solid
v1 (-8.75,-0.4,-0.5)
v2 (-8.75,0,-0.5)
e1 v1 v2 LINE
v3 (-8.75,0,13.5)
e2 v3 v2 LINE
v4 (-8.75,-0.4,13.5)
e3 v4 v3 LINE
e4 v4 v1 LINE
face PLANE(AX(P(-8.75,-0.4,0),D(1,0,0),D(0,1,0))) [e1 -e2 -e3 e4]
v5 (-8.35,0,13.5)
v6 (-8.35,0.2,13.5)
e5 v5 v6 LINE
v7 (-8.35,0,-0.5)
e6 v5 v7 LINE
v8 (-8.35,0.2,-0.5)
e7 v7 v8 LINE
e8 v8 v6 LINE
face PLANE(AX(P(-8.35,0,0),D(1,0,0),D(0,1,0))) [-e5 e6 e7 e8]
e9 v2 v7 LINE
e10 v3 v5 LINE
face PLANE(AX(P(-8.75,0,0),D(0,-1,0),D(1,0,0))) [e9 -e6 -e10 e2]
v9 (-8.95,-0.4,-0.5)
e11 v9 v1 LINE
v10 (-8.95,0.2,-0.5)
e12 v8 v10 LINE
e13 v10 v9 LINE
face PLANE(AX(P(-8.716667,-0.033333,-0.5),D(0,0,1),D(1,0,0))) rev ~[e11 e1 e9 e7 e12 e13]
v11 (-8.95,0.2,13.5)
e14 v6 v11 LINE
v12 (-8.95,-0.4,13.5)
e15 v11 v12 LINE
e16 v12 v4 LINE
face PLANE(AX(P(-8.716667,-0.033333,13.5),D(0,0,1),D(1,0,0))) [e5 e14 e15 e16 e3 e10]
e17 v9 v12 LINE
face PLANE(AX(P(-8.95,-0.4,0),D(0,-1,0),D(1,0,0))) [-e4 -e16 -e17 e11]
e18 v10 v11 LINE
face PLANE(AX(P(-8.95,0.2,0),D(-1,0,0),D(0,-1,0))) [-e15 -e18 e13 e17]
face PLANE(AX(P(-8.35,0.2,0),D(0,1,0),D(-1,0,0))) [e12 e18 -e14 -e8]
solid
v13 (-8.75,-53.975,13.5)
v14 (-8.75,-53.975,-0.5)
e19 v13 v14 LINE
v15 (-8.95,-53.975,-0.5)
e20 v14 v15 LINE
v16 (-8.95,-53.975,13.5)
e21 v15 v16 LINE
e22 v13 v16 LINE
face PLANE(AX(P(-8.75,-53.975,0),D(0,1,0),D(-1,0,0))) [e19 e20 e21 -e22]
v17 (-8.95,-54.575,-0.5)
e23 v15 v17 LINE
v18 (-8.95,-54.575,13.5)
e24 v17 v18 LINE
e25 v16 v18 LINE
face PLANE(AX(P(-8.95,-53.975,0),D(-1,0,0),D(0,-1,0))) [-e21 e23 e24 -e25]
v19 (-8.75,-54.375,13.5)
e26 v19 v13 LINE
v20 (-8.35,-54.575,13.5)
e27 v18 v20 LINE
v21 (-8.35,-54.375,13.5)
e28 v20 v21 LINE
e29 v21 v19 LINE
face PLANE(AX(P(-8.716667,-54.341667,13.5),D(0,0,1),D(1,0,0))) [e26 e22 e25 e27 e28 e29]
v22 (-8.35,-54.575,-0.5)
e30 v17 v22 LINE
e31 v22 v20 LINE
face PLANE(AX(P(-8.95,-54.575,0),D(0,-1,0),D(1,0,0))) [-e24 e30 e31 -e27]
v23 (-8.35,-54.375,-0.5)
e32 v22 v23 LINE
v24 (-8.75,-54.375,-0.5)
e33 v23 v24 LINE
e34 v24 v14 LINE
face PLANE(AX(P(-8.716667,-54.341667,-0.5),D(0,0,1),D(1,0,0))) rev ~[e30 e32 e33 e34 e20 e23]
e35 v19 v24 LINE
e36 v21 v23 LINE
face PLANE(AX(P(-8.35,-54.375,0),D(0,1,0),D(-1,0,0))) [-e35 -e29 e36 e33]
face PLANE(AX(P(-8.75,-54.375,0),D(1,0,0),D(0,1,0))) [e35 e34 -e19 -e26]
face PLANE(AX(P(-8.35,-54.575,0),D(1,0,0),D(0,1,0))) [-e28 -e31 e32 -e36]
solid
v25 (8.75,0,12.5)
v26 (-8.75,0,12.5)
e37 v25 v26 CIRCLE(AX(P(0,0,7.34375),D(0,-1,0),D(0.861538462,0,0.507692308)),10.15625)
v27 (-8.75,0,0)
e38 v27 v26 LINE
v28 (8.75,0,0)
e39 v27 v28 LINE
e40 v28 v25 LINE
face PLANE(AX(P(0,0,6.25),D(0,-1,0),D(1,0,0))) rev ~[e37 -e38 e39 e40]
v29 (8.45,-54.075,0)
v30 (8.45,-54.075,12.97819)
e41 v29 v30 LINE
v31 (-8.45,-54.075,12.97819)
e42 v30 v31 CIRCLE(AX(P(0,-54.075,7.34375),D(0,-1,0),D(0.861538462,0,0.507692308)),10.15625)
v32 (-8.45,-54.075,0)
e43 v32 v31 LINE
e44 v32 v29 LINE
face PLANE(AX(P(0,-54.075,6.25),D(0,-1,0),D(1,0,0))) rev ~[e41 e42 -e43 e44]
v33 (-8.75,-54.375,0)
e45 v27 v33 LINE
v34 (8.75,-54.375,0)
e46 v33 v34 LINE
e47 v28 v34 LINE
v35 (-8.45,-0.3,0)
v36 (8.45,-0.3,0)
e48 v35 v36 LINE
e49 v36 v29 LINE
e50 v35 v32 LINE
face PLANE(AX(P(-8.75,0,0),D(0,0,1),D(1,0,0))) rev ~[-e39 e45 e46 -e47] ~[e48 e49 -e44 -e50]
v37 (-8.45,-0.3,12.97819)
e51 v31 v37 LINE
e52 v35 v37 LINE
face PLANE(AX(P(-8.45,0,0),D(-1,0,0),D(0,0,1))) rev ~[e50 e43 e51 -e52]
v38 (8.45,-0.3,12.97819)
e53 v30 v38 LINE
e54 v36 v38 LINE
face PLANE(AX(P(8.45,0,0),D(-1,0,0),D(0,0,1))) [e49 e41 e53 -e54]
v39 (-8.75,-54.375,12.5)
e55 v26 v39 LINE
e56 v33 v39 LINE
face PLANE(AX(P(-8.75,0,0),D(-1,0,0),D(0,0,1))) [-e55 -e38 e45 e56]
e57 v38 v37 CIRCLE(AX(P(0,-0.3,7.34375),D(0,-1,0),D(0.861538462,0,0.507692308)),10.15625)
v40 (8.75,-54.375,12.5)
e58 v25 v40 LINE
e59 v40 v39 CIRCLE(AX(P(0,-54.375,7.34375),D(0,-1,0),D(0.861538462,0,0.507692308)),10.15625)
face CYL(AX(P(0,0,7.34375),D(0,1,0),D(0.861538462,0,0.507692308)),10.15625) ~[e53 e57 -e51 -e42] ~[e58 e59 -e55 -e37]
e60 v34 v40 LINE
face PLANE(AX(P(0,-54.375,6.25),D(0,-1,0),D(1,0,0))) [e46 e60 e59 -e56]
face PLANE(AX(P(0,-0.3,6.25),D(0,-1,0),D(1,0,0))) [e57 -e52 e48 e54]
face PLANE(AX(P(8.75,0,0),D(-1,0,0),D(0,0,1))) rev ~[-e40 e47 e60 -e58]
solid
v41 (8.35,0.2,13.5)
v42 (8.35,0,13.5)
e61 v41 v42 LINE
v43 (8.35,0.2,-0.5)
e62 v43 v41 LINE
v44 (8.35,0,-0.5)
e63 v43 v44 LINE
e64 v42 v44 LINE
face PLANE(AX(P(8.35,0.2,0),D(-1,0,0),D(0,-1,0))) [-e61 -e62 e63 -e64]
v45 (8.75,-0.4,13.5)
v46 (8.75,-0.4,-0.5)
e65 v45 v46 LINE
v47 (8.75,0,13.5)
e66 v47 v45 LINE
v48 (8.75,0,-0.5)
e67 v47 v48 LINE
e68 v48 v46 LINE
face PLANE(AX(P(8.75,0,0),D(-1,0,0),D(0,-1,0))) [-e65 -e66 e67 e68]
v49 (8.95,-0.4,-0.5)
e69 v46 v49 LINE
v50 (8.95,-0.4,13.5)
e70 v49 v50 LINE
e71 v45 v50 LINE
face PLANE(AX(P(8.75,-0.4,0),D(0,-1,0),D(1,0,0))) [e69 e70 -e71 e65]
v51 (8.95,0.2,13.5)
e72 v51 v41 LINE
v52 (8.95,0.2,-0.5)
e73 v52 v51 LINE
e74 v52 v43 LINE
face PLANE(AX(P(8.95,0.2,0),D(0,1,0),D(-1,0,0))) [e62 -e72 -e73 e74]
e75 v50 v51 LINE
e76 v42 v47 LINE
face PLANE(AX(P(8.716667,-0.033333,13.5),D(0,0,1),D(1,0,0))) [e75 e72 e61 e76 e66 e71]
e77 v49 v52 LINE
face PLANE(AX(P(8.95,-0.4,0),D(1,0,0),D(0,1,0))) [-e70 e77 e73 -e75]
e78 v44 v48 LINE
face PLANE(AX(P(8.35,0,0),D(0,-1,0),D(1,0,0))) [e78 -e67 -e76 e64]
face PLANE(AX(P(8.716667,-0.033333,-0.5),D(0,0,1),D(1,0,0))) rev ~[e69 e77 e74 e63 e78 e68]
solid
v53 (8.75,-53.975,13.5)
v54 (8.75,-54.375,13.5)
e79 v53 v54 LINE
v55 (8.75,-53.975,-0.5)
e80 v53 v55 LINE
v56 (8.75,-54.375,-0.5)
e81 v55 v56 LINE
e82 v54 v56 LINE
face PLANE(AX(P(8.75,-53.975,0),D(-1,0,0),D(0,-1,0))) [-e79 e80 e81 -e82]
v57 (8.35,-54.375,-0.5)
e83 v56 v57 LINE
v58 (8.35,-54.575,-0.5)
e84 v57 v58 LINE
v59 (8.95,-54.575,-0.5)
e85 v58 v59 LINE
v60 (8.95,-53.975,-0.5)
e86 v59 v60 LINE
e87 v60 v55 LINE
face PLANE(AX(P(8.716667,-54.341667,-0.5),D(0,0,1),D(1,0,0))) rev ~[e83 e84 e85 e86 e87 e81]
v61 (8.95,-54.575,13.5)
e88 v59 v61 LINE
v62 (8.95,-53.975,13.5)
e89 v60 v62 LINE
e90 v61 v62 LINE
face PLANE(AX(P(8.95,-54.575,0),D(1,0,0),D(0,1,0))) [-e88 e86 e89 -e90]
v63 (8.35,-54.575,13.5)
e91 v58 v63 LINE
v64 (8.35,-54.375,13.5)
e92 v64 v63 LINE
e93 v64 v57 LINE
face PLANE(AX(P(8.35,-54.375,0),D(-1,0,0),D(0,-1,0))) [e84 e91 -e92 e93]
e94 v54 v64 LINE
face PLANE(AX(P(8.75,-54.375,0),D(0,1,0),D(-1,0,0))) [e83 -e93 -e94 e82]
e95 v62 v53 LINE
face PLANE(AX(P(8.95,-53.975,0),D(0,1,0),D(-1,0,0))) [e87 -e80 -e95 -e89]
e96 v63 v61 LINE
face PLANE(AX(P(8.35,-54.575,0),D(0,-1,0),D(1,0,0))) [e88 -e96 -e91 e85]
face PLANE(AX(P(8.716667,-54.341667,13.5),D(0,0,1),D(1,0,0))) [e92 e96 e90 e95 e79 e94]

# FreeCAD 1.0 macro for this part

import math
import FreeCAD as App
import Part
import Sketcher
Q = App.Units.Quantity


def faces_at(feature, points):
    """Names of the faces that lie closest to the given points."""
    faces = feature.Shape.Faces
    near = lambda p: min(range(len(faces)), key=lambda i: faces[i].distToShape(Part.Vertex(*p))[0])
    return sorted({f"Face{near(p) + 1}" for p in points})

doc = App.newDocument("Part")
body = doc.addObject("PartDesign::Body", "Body")

sketch1 = body.newObject("Sketcher::SketchObject", "Sketch")
sketch1.AttachmentSupport = (doc.getObject("XZ_Plane"), [""])
sketch1.MapMode = "FlatFace"
sketch1.addGeometry([
    Part.LineSegment(App.Vector(-9, 12, 0), App.Vector(-9, 0, 0)),
    Part.LineSegment(App.Vector(-9, 0, 0), App.Vector(9, 0, 0)),
    Part.LineSegment(App.Vector(9, 0, 0), App.Vector(9, 12, 0)),
    Part.ArcOfCircle(Part.Circle(App.Vector(0, 7, 0), App.Vector(0, 0, 1), 10), math.radians(31), math.radians(149)),
], False)
sketch1.addConstraint([
    Sketcher.Constraint("Coincident", 0, 2, 1, 1),
    Sketcher.Constraint("Coincident", 1, 2, 2, 1),
    Sketcher.Constraint("Coincident", 2, 2, 3, 1),
    Sketcher.Constraint("Coincident", 3, 2, 0, 1),
    Sketcher.Constraint("Vertical", 0),
    Sketcher.Constraint("Horizontal", 1),
    Sketcher.Constraint("Vertical", 2),
    Sketcher.Constraint("Symmetric", 0, 2, 1, 2, -1, 1),
    Sketcher.Constraint("PointOnObject", 3, 3, -2),
    Sketcher.Constraint("DistanceX", 1, 1, 1, 2, Q("17.5 mm")),
    Sketcher.Constraint("DistanceY", 0, 2, 0, 1, Q("12.5 mm")),
    Sketcher.Constraint("Radius", 3, Q("10.15625 mm")),
])
pad1 = body.newObject("PartDesign::Pad", "Pad")
pad1.Profile = sketch1
pad1.Length = 54.375
doc.recompute()

thickness = body.newObject("PartDesign::Thickness", "Thickness")
thickness.Base = (pad1, faces_at(pad1, [(0, -27.188, 0), (0, -27.188, 17.5)]))
thickness.Value = 0.3
thickness.Reversed = True
thickness.Join = "Arc"
body2 = doc.addObject("PartDesign::Body", "Body001")
body2.AllowCompound = True

sketch2 = body2.newObject("Sketcher::SketchObject", "Sketch001")
sketch2.AttachmentSupport = (doc.getObject("XY_Plane001"), [""])
sketch2.MapMode = "FlatFace"
sketch2.addGeometry([
    Part.LineSegment(App.Vector(-8.35, 0, 0), App.Vector(-8.35, 0.2, 0)),
    Part.LineSegment(App.Vector(-8.35, 0.2, 0), App.Vector(-8.95, 0.2, 0)),
    Part.LineSegment(App.Vector(-8.95, 0.2, 0), App.Vector(-8.95, -0.4, 0)),
    Part.LineSegment(App.Vector(-8.95, -0.4, 0), App.Vector(-8.75, -0.4, 0)),
    Part.LineSegment(App.Vector(-8.75, -0.4, 0), App.Vector(-8.75, 0, 0)),
    Part.LineSegment(App.Vector(-8.75, 0, 0), App.Vector(-8.35, 0, 0)),
    Part.LineSegment(App.Vector(8.75, -0.4, 0), App.Vector(8.95, -0.4, 0)),
    Part.LineSegment(App.Vector(8.95, -0.4, 0), App.Vector(8.95, 0.2, 0)),
    Part.LineSegment(App.Vector(8.95, 0.2, 0), App.Vector(8.35, 0.2, 0)),
    Part.LineSegment(App.Vector(8.35, 0.2, 0), App.Vector(8.35, 0, 0)),
    Part.LineSegment(App.Vector(8.35, 0, 0), App.Vector(8.75, 0, 0)),
    Part.LineSegment(App.Vector(8.75, 0, 0), App.Vector(8.75, -0.4, 0)),
    Part.LineSegment(App.Vector(-8.75, -53.98, 0), App.Vector(-8.95, -53.98, 0)),
    Part.LineSegment(App.Vector(-8.95, -53.98, 0), App.Vector(-8.95, -54.58, 0)),
    Part.LineSegment(App.Vector(-8.95, -54.58, 0), App.Vector(-8.35, -54.58, 0)),
    Part.LineSegment(App.Vector(-8.35, -54.58, 0), App.Vector(-8.35, -54.38, 0)),
    Part.LineSegment(App.Vector(-8.35, -54.38, 0), App.Vector(-8.75, -54.38, 0)),
    Part.LineSegment(App.Vector(-8.75, -54.38, 0), App.Vector(-8.75, -53.98, 0)),
    Part.LineSegment(App.Vector(8.35, -54.38, 0), App.Vector(8.35, -54.58, 0)),
    Part.LineSegment(App.Vector(8.35, -54.58, 0), App.Vector(8.95, -54.58, 0)),
    Part.LineSegment(App.Vector(8.95, -54.58, 0), App.Vector(8.95, -53.98, 0)),
    Part.LineSegment(App.Vector(8.95, -53.98, 0), App.Vector(8.75, -53.98, 0)),
    Part.LineSegment(App.Vector(8.75, -53.98, 0), App.Vector(8.75, -54.38, 0)),
    Part.LineSegment(App.Vector(8.75, -54.38, 0), App.Vector(8.35, -54.38, 0)),
], False)
sketch2.addConstraint([
    Sketcher.Constraint("Coincident", 0, 2, 1, 1),
    Sketcher.Constraint("Coincident", 1, 2, 2, 1),
    Sketcher.Constraint("Coincident", 2, 2, 3, 1),
    Sketcher.Constraint("Coincident", 3, 2, 4, 1),
    Sketcher.Constraint("Coincident", 4, 2, 5, 1),
    Sketcher.Constraint("Coincident", 5, 2, 0, 1),
    Sketcher.Constraint("Coincident", 6, 2, 7, 1),
    Sketcher.Constraint("Coincident", 7, 2, 8, 1),
    Sketcher.Constraint("Coincident", 8, 2, 9, 1),
    Sketcher.Constraint("Coincident", 9, 2, 10, 1),
    Sketcher.Constraint("Coincident", 10, 2, 11, 1),
    Sketcher.Constraint("Coincident", 11, 2, 6, 1),
    Sketcher.Constraint("Coincident", 12, 2, 13, 1),
    Sketcher.Constraint("Coincident", 13, 2, 14, 1),
    Sketcher.Constraint("Coincident", 14, 2, 15, 1),
    Sketcher.Constraint("Coincident", 15, 2, 16, 1),
    Sketcher.Constraint("Coincident", 16, 2, 17, 1),
    Sketcher.Constraint("Coincident", 17, 2, 12, 1),
    Sketcher.Constraint("Coincident", 18, 2, 19, 1),
    Sketcher.Constraint("Coincident", 19, 2, 20, 1),
    Sketcher.Constraint("Coincident", 20, 2, 21, 1),
    Sketcher.Constraint("Coincident", 21, 2, 22, 1),
    Sketcher.Constraint("Coincident", 22, 2, 23, 1),
    Sketcher.Constraint("Coincident", 23, 2, 18, 1),
    Sketcher.Constraint("Vertical", 0),
    Sketcher.Constraint("Horizontal", 1),
    Sketcher.Constraint("Vertical", 2),
    Sketcher.Constraint("Horizontal", 3),
    Sketcher.Constraint("Vertical", 4),
    Sketcher.Constraint("Horizontal", 5),
    Sketcher.Constraint("Horizontal", 6),
    Sketcher.Constraint("Vertical", 7),
    Sketcher.Constraint("Horizontal", 8),
    Sketcher.Constraint("Vertical", 9),
    Sketcher.Constraint("Horizontal", 10),
    Sketcher.Constraint("Vertical", 11),
    Sketcher.Constraint("Horizontal", 12),
    Sketcher.Constraint("Vertical", 13),
    Sketcher.Constraint("Horizontal", 14),
    Sketcher.Constraint("Vertical", 15),
    Sketcher.Constraint("Horizontal", 16),
    Sketcher.Constraint("Vertical", 17),
    Sketcher.Constraint("Vertical", 18),
    Sketcher.Constraint("Horizontal", 19),
    Sketcher.Constraint("Vertical", 20),
    Sketcher.Constraint("Horizontal", 21),
    Sketcher.Constraint("Vertical", 22),
    Sketcher.Constraint("Horizontal", 23),
    Sketcher.Constraint("Symmetric", 5, 2, 9, 2, -1, 1),
    Sketcher.Constraint("Symmetric", 2, 2, 6, 2, -2),
    Sketcher.Constraint("Symmetric", 4, 2, 10, 2, -2),
    Sketcher.Constraint("Symmetric", 14, 2, 18, 2, -2),
    Sketcher.Constraint("Symmetric", 12, 2, 20, 2, -2),
    Sketcher.Constraint("Symmetric", 16, 2, 22, 2, -2),
    Sketcher.Constraint("Horizontal", 1, 2, 7, 2),
    Sketcher.Constraint("Vertical", 2, 2, 12, 2),
    Sketcher.Constraint("Vertical", 5, 2, 14, 2),
    Sketcher.Constraint("Vertical", 4, 2, 16, 2),
    Sketcher.Constraint("Equal", 21, 0),
    Sketcher.Constraint("Equal", 19, 2),
    Sketcher.Constraint("Equal", 7, 13),
    Sketcher.Constraint("Equal", 9, 15),
    Sketcher.Constraint("DistanceX", 1, 2, 1, 1, Q("0.6 mm")),
    Sketcher.Constraint("DistanceX", 3, 1, 3, 2, Q("0.2 mm")),
    Sketcher.Constraint("DistanceX", 5, 2, 6, 2, Q("17.3 mm")),
    Sketcher.Constraint("DistanceY", 12, 2, -1, 1, Q("53.975 mm")),
])
pad2 = body2.newObject("PartDesign::Pad", "Pad001")
pad2.Profile = sketch2
pad2.Type = "TwoLengths"
pad2.Length = 13.5
pad2.Length2 = 0.5

doc.recompute()
